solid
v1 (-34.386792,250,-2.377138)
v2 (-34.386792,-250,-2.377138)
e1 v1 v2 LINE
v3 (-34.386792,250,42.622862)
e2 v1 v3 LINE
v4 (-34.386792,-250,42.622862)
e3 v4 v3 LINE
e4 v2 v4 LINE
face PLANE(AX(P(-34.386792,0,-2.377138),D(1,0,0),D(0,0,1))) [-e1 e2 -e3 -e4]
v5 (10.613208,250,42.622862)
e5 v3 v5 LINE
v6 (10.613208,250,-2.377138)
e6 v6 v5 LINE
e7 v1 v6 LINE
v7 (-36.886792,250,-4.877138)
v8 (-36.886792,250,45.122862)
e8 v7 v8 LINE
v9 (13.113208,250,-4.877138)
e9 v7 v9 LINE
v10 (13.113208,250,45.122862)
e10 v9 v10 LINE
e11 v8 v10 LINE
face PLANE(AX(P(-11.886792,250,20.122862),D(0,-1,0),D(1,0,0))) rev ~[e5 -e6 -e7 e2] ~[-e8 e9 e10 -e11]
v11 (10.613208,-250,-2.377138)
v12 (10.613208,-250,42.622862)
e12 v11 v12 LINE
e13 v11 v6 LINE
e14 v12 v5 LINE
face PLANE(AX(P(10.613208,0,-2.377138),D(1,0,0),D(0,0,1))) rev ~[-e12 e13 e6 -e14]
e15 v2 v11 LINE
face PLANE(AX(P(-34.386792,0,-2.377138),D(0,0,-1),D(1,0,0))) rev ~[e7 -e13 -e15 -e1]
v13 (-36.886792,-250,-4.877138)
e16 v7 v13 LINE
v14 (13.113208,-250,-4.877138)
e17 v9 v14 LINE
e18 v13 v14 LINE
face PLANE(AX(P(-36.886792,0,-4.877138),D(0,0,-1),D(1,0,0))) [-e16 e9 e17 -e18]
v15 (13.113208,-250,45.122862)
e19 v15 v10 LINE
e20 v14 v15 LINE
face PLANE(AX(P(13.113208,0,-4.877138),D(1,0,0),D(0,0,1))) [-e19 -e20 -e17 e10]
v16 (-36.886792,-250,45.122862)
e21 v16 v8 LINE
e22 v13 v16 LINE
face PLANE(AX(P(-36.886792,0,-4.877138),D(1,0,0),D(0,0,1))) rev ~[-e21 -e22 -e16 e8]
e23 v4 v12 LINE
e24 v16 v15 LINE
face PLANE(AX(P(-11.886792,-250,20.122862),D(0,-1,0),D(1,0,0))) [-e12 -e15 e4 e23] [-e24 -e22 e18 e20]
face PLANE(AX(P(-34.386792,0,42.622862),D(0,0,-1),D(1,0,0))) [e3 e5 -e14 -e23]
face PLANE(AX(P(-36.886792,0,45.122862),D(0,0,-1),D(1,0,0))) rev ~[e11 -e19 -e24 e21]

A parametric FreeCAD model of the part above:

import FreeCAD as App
import Part
import Sketcher
Q = App.Units.Quantity


def add_polygon(sketch, points):
    """Adds a closed chain of lines whose ends are joined by coincident constraints."""
    first, n = sketch.GeometryCount, len(points)
    for a, b in zip(points, points[1:] + points[:1]):
        sketch.addGeometry(Part.LineSegment(App.Vector(*a, 0), App.Vector(*b, 0)), False)
    for i in range(n):
        sketch.addConstraint(Sketcher.Constraint("Coincident", first + i, 2, first + (i + 1) % n, 1))

doc = App.newDocument("Part")
body = doc.addObject("PartDesign::Body", "Body")

# Sketch on XZ plane
sketch1 = body.newObject("Sketcher::SketchObject", "Sketch")
sketch1.AttachmentSupport = (doc.getObject("XZ_Plane"), [""])
sketch1.MapMode = "FlatFace"
add_polygon(sketch1, [(-36.886792, 45.122862), (-36.886792, -4.877138), (13.113208, -4.877138), (13.113208, 45.122862)])  # lines 0-3
add_polygon(sketch1, [(10.613208, -2.377138), (-34.386792, -2.377138), (-34.386792, 42.622862), (10.613208, 42.622862)])  # lines 4-7
sketch1.addConstraint([
    Sketcher.Constraint("Vertical", 0),
    Sketcher.Constraint("Horizontal", 1),
    Sketcher.Constraint("Vertical", 2),
    Sketcher.Constraint("Horizontal", 3),
    Sketcher.Constraint("Horizontal", 4),
    Sketcher.Constraint("Vertical", 5),
    Sketcher.Constraint("Horizontal", 6),
    Sketcher.Constraint("Vertical", 7),
    Sketcher.Constraint("Equal", 3, 0),
    Sketcher.Constraint("Equal", 6, 5),
    Sketcher.Constraint("DistanceX", 1, 1, 1, 2, Q("50 mm")),
    Sketcher.Constraint("DistanceX", 4, 2, 4, 1, Q("45 mm")),
    Sketcher.Constraint("DistanceX", 0, 2, 4, 2, Q("2.5 mm")),
    Sketcher.Constraint("DistanceY", 0, 2, 4, 2, Q("2.5 mm")),
    Sketcher.Constraint("DistanceY", 0, 2, -1, 1, Q("4.877138 mm")),
    Sketcher.Constraint("DistanceX", 0, 2, -1, 1, Q("36.886792 mm")),
])
pad1 = body.newObject("PartDesign::Pad", "Pad")
pad1.Profile = sketch1
pad1.Length = 500
pad1.Midplane = True

doc.recompute()
